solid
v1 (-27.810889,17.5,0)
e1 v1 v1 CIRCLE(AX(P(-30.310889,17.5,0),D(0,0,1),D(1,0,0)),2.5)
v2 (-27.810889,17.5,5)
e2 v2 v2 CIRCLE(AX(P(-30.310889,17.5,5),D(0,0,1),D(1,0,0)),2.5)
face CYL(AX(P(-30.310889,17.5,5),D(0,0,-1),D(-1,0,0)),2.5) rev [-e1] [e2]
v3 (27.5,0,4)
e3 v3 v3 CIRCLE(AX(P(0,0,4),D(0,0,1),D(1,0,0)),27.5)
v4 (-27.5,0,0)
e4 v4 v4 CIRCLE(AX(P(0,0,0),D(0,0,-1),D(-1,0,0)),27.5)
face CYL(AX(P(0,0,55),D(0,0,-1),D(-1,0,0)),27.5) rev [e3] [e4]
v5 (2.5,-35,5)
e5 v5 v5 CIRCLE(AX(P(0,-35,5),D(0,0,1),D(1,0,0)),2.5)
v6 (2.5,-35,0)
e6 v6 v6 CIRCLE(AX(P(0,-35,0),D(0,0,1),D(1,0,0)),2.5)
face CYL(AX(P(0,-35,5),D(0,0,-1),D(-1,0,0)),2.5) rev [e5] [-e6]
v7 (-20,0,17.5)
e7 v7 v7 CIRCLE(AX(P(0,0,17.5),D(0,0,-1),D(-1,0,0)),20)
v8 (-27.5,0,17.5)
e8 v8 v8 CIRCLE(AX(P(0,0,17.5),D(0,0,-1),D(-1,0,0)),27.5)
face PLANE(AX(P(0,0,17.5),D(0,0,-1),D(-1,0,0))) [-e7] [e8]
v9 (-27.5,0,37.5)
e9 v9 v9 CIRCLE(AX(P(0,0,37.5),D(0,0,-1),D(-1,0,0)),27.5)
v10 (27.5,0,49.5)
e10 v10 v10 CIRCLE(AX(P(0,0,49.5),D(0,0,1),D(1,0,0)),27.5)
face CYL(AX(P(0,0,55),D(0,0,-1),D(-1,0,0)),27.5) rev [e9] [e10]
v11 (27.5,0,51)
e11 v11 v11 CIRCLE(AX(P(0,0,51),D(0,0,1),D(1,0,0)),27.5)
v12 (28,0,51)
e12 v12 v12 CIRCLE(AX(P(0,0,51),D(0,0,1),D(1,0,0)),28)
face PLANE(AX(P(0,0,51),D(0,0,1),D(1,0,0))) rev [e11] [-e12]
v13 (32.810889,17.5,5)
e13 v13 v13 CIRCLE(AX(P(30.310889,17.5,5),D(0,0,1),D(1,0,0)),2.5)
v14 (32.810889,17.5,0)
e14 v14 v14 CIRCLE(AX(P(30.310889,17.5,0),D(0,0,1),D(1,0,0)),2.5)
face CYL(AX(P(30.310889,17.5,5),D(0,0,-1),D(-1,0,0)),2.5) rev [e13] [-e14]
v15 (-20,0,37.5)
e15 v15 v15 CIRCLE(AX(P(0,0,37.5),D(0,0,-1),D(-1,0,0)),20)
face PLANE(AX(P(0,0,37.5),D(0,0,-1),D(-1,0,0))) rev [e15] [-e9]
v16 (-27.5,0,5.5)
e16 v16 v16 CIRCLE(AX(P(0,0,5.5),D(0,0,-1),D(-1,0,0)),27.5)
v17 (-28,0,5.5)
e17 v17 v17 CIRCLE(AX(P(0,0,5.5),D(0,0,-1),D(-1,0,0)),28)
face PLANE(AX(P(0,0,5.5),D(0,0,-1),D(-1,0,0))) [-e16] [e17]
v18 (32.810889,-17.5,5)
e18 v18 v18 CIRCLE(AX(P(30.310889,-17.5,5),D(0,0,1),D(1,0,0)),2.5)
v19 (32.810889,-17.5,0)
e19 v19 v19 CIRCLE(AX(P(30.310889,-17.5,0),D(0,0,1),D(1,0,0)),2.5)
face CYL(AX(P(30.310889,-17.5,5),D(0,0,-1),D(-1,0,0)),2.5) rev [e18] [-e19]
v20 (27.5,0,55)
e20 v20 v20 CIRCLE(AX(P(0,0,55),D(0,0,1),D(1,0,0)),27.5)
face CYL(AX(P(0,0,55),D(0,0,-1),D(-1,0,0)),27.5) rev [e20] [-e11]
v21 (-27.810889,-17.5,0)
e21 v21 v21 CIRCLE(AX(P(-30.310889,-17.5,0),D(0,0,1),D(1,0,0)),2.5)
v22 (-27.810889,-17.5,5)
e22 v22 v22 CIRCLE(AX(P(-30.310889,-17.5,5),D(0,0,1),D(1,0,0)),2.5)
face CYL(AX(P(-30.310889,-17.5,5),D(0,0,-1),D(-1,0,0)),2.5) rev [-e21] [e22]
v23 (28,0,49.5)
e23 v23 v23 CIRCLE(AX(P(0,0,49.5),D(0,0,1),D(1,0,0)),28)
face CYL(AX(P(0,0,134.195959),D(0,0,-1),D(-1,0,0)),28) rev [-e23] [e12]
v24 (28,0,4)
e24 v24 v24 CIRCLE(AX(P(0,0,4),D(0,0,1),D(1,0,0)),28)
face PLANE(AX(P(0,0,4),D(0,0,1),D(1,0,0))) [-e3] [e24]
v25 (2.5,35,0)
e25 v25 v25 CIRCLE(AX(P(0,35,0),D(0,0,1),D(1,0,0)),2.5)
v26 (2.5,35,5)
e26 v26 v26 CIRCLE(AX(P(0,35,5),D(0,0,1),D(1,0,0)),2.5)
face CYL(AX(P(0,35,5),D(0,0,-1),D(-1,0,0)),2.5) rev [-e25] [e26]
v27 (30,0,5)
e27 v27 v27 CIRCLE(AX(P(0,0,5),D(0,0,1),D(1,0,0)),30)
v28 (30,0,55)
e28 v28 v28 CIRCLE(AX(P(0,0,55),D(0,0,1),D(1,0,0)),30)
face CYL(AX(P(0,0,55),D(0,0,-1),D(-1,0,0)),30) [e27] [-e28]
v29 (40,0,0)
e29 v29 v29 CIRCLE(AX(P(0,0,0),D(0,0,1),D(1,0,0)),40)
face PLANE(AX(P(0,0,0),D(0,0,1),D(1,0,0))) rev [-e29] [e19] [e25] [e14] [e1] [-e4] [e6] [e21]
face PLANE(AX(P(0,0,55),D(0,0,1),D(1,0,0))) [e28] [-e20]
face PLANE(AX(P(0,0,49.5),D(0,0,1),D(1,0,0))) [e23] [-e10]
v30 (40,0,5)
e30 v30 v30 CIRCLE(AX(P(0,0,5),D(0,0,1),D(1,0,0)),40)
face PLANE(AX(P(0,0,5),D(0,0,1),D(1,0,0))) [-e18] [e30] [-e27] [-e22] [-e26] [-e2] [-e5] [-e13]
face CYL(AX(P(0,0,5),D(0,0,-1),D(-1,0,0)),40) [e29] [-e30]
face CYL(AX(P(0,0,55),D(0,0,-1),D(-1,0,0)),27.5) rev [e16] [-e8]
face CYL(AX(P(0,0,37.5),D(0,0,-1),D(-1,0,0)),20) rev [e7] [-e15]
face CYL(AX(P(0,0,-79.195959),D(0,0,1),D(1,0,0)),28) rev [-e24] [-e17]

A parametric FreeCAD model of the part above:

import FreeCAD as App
import Part
import Sketcher
Q = App.Units.Quantity

doc = App.newDocument("Part")
body = doc.addObject("PartDesign::Body", "Body")

sketch1 = body.newObject("Sketcher::SketchObject", "Sketch")
sketch1.AttachmentSupport = (doc.getObject("XY_Plane"), [""])
sketch1.MapMode = "FlatFace"
sketch1.addGeometry(Part.Circle(App.Vector(0, 0, 0), App.Vector(0, 0, 1), 40), False)
sketch1.addGeometry(Part.Circle(App.Vector(-30.310889, -17.5, 0), App.Vector(0, 0, 1), 2.5), False)
sketch1.addGeometry(Part.Circle(App.Vector(0, -35, 0), App.Vector(0, 0, 1), 2.5), False)
sketch1.addGeometry(Part.Circle(App.Vector(30.310889, -17.5, 0), App.Vector(0, 0, 1), 2.5), False)
sketch1.addGeometry(Part.Circle(App.Vector(-30.310889, 17.5, 0), App.Vector(0, 0, 1), 2.5), False)
sketch1.addGeometry(Part.Circle(App.Vector(30.310889, 17.5, 0), App.Vector(0, 0, 1), 2.5), False)
sketch1.addGeometry(Part.Circle(App.Vector(0, 35, 0), App.Vector(0, 0, 1), 2.5), False)
sketch1.addConstraint(Sketcher.Constraint("Coincident", 0, 3, -1, 1))
sketch1.addConstraint(Sketcher.Constraint("Equal", 1, 2))
sketch1.addConstraint(Sketcher.Constraint("Equal", 2, 3))
sketch1.addConstraint(Sketcher.Constraint("Equal", 3, 4))
sketch1.addConstraint(Sketcher.Constraint("Equal", 4, 5))
sketch1.addConstraint(Sketcher.Constraint("Equal", 5, 6))
sketch1.addConstraint(Sketcher.Constraint("Symmetric", 3, 3, 4, 3, -1, 1))
sketch1.addConstraint(Sketcher.Constraint("Symmetric", 1, 3, 5, 3, -1, 1))
sketch1.addConstraint(Sketcher.Constraint("Symmetric", 2, 3, 6, 3, -1, 1))
sketch1.addConstraint(Sketcher.Constraint("Symmetric", 1, 3, 3, 3, -2))
sketch1.addConstraint(Sketcher.Constraint("PointOnObject", 2, 3, -2))
sketch1.addConstraint(Sketcher.Constraint("Diameter", 0, Q("80 mm")))
sketch1.addConstraint(Sketcher.Constraint("Diameter", 1, Q("5 mm")))
sketch1.addConstraint(Sketcher.Constraint("DistanceY", 2, 3, -1, 1, Q("35 mm")))
sketch1.addConstraint(Sketcher.Constraint("DistanceY", 1, 3, 4, 3, Q("35 mm")))
sketch1.addConstraint(Sketcher.Constraint("DistanceX", 1, 3, -1, 1, Q("30.310889 mm")))
pad1 = body.newObject("PartDesign::Pad", "Pad")
pad1.Profile = sketch1
pad1.Length = 5

sketch2 = body.newObject("Sketcher::SketchObject", "Sketch001")
sketch2.AttachmentSupport = (doc.getObject("XY_Plane"), [""])
sketch2.MapMode = "FlatFace"
sketch2.AttachmentOffset = App.Placement(App.Vector(0, 0, 5), App.Rotation())
sketch2.addGeometry(Part.Circle(App.Vector(0, 0, 0), App.Vector(0, 0, 1), 30), False)
sketch2.addGeometry(Part.Circle(App.Vector(0, 0, 0), App.Vector(0, 0, 1), 27.5), False)
sketch2.addConstraint(Sketcher.Constraint("Coincident", 0, 3, -1, 1))
sketch2.addConstraint(Sketcher.Constraint("Coincident", 1, 3, -1, 1))
sketch2.addConstraint(Sketcher.Constraint("Diameter", 0, Q("60 mm")))
sketch2.addConstraint(Sketcher.Constraint("Diameter", 1, Q("55 mm")))
pad2 = body.newObject("PartDesign::Pad", "Pad001")
pad2.Profile = sketch2
pad2.Length = 50

sketch3 = body.newObject("Sketcher::SketchObject", "Sketch002")
sketch3.AttachmentSupport = (doc.getObject("XY_Plane"), [""])
sketch3.MapMode = "FlatFace"
sketch3.addGeometry(Part.Circle(App.Vector(0, 0, 0), App.Vector(0, 0, 1), 27.5), False)
sketch3.addConstraint(Sketcher.Constraint("Coincident", 0, 3, -1, 1))
sketch3.addConstraint(Sketcher.Constraint("Diameter", 0, Q("55 mm")))
pocket1 = body.newObject("PartDesign::Pocket", "Pocket")
pocket1.Profile = sketch3
pocket1.Length = 50
pocket1.Reversed = True

sketch4 = body.newObject("Sketcher::SketchObject", "Sketch003")
sketch4.AttachmentSupport = (doc.getObject("XY_Plane"), [""])
sketch4.MapMode = "FlatFace"
sketch4.AttachmentOffset = App.Placement(App.Vector(0, 0, 27.5), App.Rotation())
sketch4.addGeometry(Part.Circle(App.Vector(0, 0, 0), App.Vector(0, 0, 1), 27.5), False)
sketch4.addGeometry(Part.Circle(App.Vector(0, 0, 0), App.Vector(0, 0, 1), 20), False)
sketch4.addConstraint(Sketcher.Constraint("Coincident", 0, 3, -1, 1))
sketch4.addConstraint(Sketcher.Constraint("Coincident", 1, 3, -1, 1))
sketch4.addConstraint(Sketcher.Constraint("Diameter", 0, Q("55 mm")))
sketch4.addConstraint(Sketcher.Constraint("Diameter", 1, Q("40 mm")))
pad3 = body.newObject("PartDesign::Pad", "Pad002")
pad3.Profile = sketch4
pad3.Type = "TwoLengths"
pad3.Length = 10
pad3.Length2 = 10
pad3.Reversed = True

sketch5 = body.newObject("Sketcher::SketchObject", "Sketch004")
sketch5.AttachmentSupport = (doc.getObject("XY_Plane"), [""])
sketch5.MapMode = "FlatFace"
sketch5.AttachmentOffset = App.Placement(App.Vector(0, 0, 5.5), App.Rotation())
sketch5.addGeometry(Part.Circle(App.Vector(0, 0, 0), App.Vector(0, 0, 1), 28), False)
sketch5.addConstraint(Sketcher.Constraint("Coincident", 0, 3, -1, 1))
sketch5.addConstraint(Sketcher.Constraint("Diameter", 0, Q("56 mm")))
pocket2 = body.newObject("PartDesign::Pocket", "Pocket001")
pocket2.Profile = sketch5
pocket2.Length = 1.5

sketch6 = body.newObject("Sketcher::SketchObject", "Sketch005")
sketch6.AttachmentSupport = (doc.getObject("XY_Plane"), [""])
sketch6.MapMode = "FlatFace"
sketch6.AttachmentOffset = App.Placement(App.Vector(0, 0, 51), App.Rotation())
sketch6.addGeometry(Part.Circle(App.Vector(0, 0, 0), App.Vector(0, 0, 1), 28), False)
sketch6.addConstraint(Sketcher.Constraint("Coincident", 0, 3, -1, 1))
sketch6.addConstraint(Sketcher.Constraint("Diameter", 0, Q("56 mm")))
pocket3 = body.newObject("PartDesign::Pocket", "Pocket002")
pocket3.Profile = sketch6
pocket3.Length = 1.5

doc.recompute()
